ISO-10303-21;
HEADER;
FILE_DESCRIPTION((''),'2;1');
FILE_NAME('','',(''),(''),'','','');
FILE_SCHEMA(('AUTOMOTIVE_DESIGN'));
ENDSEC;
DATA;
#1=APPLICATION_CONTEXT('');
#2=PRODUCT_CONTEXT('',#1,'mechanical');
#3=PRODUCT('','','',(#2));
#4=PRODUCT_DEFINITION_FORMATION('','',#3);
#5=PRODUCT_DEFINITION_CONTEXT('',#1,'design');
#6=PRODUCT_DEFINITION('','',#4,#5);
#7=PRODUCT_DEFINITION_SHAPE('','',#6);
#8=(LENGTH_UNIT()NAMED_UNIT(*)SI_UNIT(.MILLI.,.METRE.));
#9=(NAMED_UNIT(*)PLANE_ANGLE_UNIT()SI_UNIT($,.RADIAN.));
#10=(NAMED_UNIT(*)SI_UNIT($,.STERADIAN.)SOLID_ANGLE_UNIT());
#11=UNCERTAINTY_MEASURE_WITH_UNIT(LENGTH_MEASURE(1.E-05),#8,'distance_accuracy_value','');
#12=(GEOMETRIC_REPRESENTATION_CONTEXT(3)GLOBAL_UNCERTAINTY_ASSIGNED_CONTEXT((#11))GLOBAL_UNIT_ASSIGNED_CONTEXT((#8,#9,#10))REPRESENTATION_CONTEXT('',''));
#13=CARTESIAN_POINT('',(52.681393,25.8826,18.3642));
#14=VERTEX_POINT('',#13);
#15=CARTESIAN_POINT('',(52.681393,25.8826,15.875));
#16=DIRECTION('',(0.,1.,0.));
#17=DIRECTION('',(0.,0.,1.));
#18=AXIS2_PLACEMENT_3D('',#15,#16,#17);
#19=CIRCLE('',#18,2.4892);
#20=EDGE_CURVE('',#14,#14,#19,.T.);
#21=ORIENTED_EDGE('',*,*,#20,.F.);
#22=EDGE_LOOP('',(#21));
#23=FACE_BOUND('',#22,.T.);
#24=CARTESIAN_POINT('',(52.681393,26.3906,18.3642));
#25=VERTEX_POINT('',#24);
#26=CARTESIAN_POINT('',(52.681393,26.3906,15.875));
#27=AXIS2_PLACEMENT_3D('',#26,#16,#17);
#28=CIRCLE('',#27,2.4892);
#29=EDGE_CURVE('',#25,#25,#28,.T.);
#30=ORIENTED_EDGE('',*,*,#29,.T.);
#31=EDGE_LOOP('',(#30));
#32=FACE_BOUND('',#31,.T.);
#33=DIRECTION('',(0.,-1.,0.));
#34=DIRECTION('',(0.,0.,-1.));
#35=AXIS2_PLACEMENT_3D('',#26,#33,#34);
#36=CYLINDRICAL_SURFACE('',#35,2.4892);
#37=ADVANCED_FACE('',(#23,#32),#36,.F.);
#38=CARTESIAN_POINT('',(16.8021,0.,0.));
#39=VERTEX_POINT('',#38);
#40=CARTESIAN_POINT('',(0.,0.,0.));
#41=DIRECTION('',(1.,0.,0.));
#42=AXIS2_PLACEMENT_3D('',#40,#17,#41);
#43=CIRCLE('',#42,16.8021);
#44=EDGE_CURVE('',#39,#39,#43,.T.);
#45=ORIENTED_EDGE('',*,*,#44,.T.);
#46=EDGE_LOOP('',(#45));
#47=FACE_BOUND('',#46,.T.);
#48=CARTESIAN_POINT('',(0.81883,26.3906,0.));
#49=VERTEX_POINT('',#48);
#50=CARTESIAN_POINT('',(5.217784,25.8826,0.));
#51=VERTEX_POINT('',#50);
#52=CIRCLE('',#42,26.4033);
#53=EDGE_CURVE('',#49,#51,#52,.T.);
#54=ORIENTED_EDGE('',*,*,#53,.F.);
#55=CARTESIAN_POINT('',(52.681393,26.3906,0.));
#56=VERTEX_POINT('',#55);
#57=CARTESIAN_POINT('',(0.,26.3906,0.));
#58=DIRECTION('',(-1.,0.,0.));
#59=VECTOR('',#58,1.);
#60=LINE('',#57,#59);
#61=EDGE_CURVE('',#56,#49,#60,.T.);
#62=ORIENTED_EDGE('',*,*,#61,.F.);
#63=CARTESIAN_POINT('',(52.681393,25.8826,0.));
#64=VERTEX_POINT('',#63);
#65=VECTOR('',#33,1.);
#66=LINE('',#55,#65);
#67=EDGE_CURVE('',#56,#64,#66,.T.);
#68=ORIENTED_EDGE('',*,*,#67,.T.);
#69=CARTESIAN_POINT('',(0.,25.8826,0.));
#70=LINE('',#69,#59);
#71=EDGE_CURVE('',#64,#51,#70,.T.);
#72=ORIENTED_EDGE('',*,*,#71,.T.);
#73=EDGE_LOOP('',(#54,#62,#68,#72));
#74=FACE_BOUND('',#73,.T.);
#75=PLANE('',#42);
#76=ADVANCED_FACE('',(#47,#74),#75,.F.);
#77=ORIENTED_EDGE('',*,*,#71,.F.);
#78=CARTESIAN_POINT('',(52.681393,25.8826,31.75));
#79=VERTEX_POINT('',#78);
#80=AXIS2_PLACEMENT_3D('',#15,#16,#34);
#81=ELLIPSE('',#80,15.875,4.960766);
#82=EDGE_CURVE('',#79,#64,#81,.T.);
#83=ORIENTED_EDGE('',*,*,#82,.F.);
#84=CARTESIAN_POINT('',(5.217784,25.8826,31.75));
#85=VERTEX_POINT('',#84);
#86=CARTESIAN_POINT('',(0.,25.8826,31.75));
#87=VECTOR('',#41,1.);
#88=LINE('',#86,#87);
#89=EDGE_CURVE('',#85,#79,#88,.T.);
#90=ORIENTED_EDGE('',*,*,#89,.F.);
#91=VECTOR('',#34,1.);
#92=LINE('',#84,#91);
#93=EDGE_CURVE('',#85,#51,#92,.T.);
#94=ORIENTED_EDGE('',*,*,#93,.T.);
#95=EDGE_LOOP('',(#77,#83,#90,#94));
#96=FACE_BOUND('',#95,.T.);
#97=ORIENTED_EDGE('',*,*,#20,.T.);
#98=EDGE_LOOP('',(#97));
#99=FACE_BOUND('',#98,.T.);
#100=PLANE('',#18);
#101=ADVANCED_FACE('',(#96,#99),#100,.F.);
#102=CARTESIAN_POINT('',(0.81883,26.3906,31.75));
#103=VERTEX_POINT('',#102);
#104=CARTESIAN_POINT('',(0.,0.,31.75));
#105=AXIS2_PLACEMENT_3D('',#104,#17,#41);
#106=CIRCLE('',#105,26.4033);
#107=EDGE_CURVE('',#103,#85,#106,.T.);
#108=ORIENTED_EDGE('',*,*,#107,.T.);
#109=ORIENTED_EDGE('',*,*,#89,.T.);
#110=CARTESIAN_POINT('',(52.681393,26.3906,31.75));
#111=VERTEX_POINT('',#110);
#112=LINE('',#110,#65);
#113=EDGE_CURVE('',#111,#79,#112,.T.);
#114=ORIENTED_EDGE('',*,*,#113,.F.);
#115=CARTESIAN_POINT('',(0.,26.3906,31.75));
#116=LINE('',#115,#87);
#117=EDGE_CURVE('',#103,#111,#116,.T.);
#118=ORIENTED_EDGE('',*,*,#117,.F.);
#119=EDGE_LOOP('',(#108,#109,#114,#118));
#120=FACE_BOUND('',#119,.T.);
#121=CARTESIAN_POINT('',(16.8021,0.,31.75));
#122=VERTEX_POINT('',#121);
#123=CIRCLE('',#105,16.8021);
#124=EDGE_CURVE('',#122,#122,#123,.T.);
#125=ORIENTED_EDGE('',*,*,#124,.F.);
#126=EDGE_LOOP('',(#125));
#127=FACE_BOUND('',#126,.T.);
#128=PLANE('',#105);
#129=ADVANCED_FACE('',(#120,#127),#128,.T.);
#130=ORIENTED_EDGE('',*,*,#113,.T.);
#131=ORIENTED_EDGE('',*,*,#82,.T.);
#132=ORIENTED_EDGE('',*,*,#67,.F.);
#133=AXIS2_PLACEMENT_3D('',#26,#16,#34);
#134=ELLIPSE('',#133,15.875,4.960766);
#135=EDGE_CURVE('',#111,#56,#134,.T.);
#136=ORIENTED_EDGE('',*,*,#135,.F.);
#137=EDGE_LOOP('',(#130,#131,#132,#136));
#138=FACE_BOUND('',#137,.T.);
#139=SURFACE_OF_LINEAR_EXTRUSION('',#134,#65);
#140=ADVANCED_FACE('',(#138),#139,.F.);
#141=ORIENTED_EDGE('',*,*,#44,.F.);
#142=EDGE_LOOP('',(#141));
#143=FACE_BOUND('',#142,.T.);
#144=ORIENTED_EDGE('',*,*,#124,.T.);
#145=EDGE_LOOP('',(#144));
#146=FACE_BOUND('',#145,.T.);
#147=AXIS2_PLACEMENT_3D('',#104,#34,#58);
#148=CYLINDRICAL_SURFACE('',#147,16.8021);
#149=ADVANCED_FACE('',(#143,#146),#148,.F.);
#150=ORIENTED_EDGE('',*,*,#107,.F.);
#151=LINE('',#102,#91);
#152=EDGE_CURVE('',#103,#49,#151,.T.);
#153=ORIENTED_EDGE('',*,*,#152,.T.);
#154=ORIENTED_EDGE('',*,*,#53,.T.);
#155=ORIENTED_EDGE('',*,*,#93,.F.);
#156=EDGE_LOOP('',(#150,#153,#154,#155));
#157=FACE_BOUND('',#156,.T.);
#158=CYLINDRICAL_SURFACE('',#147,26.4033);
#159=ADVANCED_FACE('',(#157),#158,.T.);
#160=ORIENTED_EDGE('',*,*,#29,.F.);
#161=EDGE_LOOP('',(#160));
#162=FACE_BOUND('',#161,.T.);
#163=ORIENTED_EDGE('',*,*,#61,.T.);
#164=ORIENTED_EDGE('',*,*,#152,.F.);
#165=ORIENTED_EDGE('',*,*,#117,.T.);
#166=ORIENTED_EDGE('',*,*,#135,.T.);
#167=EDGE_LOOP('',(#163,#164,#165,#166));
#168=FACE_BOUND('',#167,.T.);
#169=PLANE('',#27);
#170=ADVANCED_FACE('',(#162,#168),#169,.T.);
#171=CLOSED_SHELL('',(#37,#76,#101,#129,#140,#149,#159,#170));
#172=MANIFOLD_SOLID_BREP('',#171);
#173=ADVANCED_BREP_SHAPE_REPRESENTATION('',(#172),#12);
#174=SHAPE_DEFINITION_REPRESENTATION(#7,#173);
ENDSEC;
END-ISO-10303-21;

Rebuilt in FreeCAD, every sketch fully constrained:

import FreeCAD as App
import Part
import Sketcher
from FreeCAD import Vector
Q = App.Units.Quantity

doc = App.newDocument("Part")
body = doc.addObject("PartDesign::Body", "Body")

sketch1 = body.newObject("Sketcher::SketchObject", "Sketch")
sketch1.AttachmentSupport = (doc.getObject("XY_Plane"), [""])
sketch1.MapMode = "FlatFace"
sketch1.addGeometry([
    Part.Circle(Vector(0, 0, 0), Vector(0, 0, 1), 26.4033),
    Part.Circle(Vector(0, 0, 0), Vector(0, 0, 1), 16.8021),
], False)
sketch1.addConstraint([
    Sketcher.Constraint("Coincident", 0, 3, -1, 1),
    Sketcher.Constraint("Coincident", 1, 3, -1, 1),
    Sketcher.Constraint("Diameter", 0, Q("2.079 in")),
    Sketcher.Constraint("Diameter", 1, Q("1.323 in")),
])
pad1 = body.newObject("PartDesign::Pad", "Pad")
pad1.Profile = sketch1
pad1.Length = Q("1.25 in")

sketch2 = body.newObject("Sketcher::SketchObject", "Sketch001")
sketch2.AttachmentSupport = (doc.getObject("XZ_Plane"), [""])
sketch2.MapMode = "FlatFace"
sketch2.AttachmentOffset = App.Placement(Vector(0, 0, -1.019 * 25.4), App.Rotation())
sketch2.addGeometry([
    Part.LineSegment(Vector(0, 0, 0), Vector(0, 31.75, 0)),
    Part.LineSegment(Vector(0, 31.75, 0), Vector(52.681393, 31.75, 0)),
    Part.BSplineCurve([Vector(52.681393, 31.75, 0), Vector(57.642159, 31.75, 0), Vector(57.642159, 15.875, 0), Vector(57.642159, 0, 0), Vector(52.681393, 0, 0)], [3, 2, 3], [3.141592654, 4.71238898, 6.283185307], False, 2, [1, 0.707106781, 1, 0.707106781, 1], False),
    Part.LineSegment(Vector(52.681393, 0, 0), Vector(0, 0, 0)),
    Part.Circle(Vector(52.681393, 15.875, 0), Vector(0, 0, 1), 2.4892),
], False)
sketch2.addConstraint([
    Sketcher.Constraint("Block", 2),
    Sketcher.Constraint("Coincident", 0, 2, 1, 1),
    Sketcher.Constraint("Coincident", 1, 2, 2, 1),
    Sketcher.Constraint("Coincident", 2, 2, 3, 1),
    Sketcher.Constraint("Coincident", 3, 2, 0, 1),
    Sketcher.Constraint("Vertical", 0),
    Sketcher.Constraint("Horizontal", 1),
    Sketcher.Constraint("Horizontal", 3),
    Sketcher.Constraint("PointOnObject", 0, 2, -2),
    Sketcher.Constraint("Vertical", 4, 3, 1, 2),
    Sketcher.Constraint("Diameter", 4, Q("0.196 in")),
    Sketcher.Constraint("DistanceY", -1, 1, 4, 3, Q("0.625 in")),
])
pad2 = body.newObject("PartDesign::Pad", "Pad001")
pad2.Profile = sketch2
pad2.Length = Q("0.02 in")
pad2.Reversed = True

doc.recompute()
